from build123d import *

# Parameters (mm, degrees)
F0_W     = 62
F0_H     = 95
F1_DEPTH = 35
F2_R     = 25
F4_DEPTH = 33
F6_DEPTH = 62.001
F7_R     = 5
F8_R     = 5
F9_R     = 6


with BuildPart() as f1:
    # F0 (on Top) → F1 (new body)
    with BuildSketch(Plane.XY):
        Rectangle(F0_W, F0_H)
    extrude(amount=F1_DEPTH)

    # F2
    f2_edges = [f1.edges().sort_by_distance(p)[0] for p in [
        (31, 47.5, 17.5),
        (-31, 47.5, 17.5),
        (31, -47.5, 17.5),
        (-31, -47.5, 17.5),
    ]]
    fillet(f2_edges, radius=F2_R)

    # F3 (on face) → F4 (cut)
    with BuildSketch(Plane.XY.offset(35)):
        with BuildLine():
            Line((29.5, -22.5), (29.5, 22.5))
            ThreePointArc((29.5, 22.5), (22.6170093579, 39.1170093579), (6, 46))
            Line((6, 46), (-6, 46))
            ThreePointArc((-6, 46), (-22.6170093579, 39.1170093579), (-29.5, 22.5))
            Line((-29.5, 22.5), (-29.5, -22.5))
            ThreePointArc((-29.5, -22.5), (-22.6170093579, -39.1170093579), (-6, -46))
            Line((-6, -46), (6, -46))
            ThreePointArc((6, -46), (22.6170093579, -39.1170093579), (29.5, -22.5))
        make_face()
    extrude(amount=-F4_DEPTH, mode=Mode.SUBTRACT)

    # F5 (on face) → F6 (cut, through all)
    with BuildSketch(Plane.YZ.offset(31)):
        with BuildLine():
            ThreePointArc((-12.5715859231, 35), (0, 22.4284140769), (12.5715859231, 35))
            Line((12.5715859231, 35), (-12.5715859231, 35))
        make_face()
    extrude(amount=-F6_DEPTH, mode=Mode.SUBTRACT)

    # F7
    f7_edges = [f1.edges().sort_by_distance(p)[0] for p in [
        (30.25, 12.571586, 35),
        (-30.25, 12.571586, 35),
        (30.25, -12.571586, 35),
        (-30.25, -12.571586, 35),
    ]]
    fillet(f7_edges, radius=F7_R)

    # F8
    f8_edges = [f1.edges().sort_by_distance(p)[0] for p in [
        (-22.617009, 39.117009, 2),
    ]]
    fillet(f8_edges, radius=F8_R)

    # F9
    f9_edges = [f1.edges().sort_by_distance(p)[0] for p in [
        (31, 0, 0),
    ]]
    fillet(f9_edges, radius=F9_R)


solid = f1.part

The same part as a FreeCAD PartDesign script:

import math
import FreeCAD as App
import Part
import Sketcher

V = App.Vector


def edges_at(feature, points):
    """Names of the edges that pass closest to the given points."""
    edges = feature.Shape.Edges
    near = lambda p: min(range(len(edges)), key=lambda i: edges[i].distToShape(Part.Vertex(*p))[0])
    return sorted({f"Edge{near(p) + 1}" for p in points})


def add_polygon(sketch, points):
    """Adds a closed chain of lines whose ends are joined by coincident constraints."""
    first, n = sketch.GeometryCount, len(points)
    for a, b in zip(points, points[1:] + points[:1]):
        sketch.addGeometry(Part.LineSegment(App.Vector(*a, 0), App.Vector(*b, 0)), False)
    for i in range(n):
        sketch.addConstraint(Sketcher.Constraint("Coincident", first + i, 2, first + (i + 1) % n, 1))

doc = App.newDocument("Part")
params = doc.addObject("Spreadsheet::Sheet", "Params")
for row, (alias, value) in enumerate([
    ("sketch1_width", "62 mm"),
    ("sketch1_height", "95 mm"),
    ("pad1_length", "35 mm"),
    ("fillet_radius", "25 mm"),
    ("sketch2_radius", "23.5 mm"),
    ("sketch2_width", "12 mm"),
    ("sketch2_height", "45 mm"),
    ("pocket1_length", "33 mm"),
    ("fillet2_radius", "5 mm"),
    ("fillet3_radius", "5 mm"),
    ("fillet4_radius", "6 mm"),
], start=1):
    params.set(f"A{row}", alias)
    params.set(f"B{row}", "=" + value)
    params.setAlias(f"B{row}", alias)

body = doc.addObject("PartDesign::Body", "Body")

# Sketch on XY plane
sketch1 = body.newObject("Sketcher::SketchObject", "Sketch")
sketch1.AttachmentSupport = (doc.getObject("XY_Plane"), [""])
sketch1.MapMode = "FlatFace"
add_polygon(sketch1, [(-31, 48), (-31, -48), (31, -48), (31, 48)])  # lines 0-3
sketch1.addConstraint(Sketcher.Constraint("Vertical", 0))
sketch1.addConstraint(Sketcher.Constraint("Horizontal", 1))
sketch1.addConstraint(Sketcher.Constraint("Vertical", 2))
sketch1.addConstraint(Sketcher.Constraint("Horizontal", 3))
sketch1.addConstraint(Sketcher.Constraint("Symmetric", 0, 2, 2, 2, -1, 1))
sketch1.addConstraint(Sketcher.Constraint("DistanceX", 1, 1, 1, 2, 62.0))
sketch1.addConstraint(Sketcher.Constraint("DistanceY", 0, 2, 0, 1, 95.0))
sketch1.setExpression("Constraints[9]", "Params.sketch1_width")
sketch1.setExpression("Constraints[10]", "Params.sketch1_height")
pad1 = body.newObject("PartDesign::Pad", "Pad")
pad1.Profile = sketch1
pad1.setExpression("Length", "Params.pad1_length")
doc.recompute()

fillet = body.newObject("PartDesign::Fillet", "Fillet")
fillet.Base = (pad1, edges_at(pad1, [
    (31, 47.5, 17.5),
    (-31, 47.5, 17.5),
    (31, -47.5, 17.5),
    (-31, -47.5, 17.5),
]))
fillet.setExpression("Radius", "Params.fillet_radius")

# Sketch on XY plane
sketch2 = body.newObject("Sketcher::SketchObject", "Sketch001")
sketch2.AttachmentSupport = (doc.getObject("XY_Plane"), [""])
sketch2.MapMode = "FlatFace"
sketch2.AttachmentOffset = App.Placement(V(0, 0, 35), App.Rotation())
sketch2.addGeometry(Part.LineSegment(V(30, -22, 0), V(30, 22, 0)), False)
sketch2.addGeometry(Part.ArcOfCircle(Part.Circle(V(6, 22, 0), V(0, 0, 1), 24), math.radians(0), math.radians(90)), False)
sketch2.addGeometry(Part.LineSegment(V(6, 46, 0), V(-6, 46, 0)), False)
sketch2.addGeometry(Part.ArcOfCircle(Part.Circle(V(-6, 22, 0), V(0, 0, 1), 24), math.radians(90), math.radians(180)), False)
sketch2.addGeometry(Part.LineSegment(V(-30, 22, 0), V(-30, -22, 0)), False)
sketch2.addGeometry(Part.ArcOfCircle(Part.Circle(V(-6, -22, 0), V(0, 0, 1), 24), math.radians(180), math.radians(270)), False)
sketch2.addGeometry(Part.LineSegment(V(-6, -46, 0), V(6, -46, 0)), False)
sketch2.addGeometry(Part.ArcOfCircle(Part.Circle(V(6, -22, 0), V(0, 0, 1), 24), math.radians(-90), math.radians(0)), False)
sketch2.addConstraint(Sketcher.Constraint("Tangent", 0, 2, 1, 1))
sketch2.addConstraint(Sketcher.Constraint("Tangent", 1, 2, 2, 1))
sketch2.addConstraint(Sketcher.Constraint("Tangent", 2, 2, 3, 1))
sketch2.addConstraint(Sketcher.Constraint("Tangent", 3, 2, 4, 1))
sketch2.addConstraint(Sketcher.Constraint("Tangent", 4, 2, 5, 1))
sketch2.addConstraint(Sketcher.Constraint("Tangent", 5, 2, 6, 1))
sketch2.addConstraint(Sketcher.Constraint("Tangent", 6, 2, 7, 1))
sketch2.addConstraint(Sketcher.Constraint("Tangent", 7, 2, 0, 1))
sketch2.addConstraint(Sketcher.Constraint("Vertical", 0))
sketch2.addConstraint(Sketcher.Constraint("Horizontal", 2))
sketch2.addConstraint(Sketcher.Constraint("Vertical", 4))
sketch2.addConstraint(Sketcher.Constraint("Horizontal", 6))
sketch2.addConstraint(Sketcher.Constraint("Equal", 1, 3))
sketch2.addConstraint(Sketcher.Constraint("Equal", 3, 5))
sketch2.addConstraint(Sketcher.Constraint("Equal", 5, 7))
sketch2.addConstraint(Sketcher.Constraint("Symmetric", 1, 3, 5, 3, -1, 1))
sketch2.addConstraint(Sketcher.Constraint("Radius", 1, 23.5))
sketch2.addConstraint(Sketcher.Constraint("DistanceX", 2, 2, 2, 1, 12.0))
sketch2.addConstraint(Sketcher.Constraint("DistanceY", 0, 1, 0, 2, 45.0))
sketch2.setExpression("Constraints[16]", "Params.sketch2_radius")
sketch2.setExpression("Constraints[17]", "Params.sketch2_width")
sketch2.setExpression("Constraints[18]", "Params.sketch2_height")
pocket1 = body.newObject("PartDesign::Pocket", "Pocket")
pocket1.Profile = sketch2
pocket1.setExpression("Length", "Params.pocket1_length")

# Sketch on YZ plane
sketch3 = body.newObject("Sketcher::SketchObject", "Sketch002")
sketch3.AttachmentSupport = (doc.getObject("YZ_Plane"), [""])
sketch3.MapMode = "FlatFace"
sketch3.AttachmentOffset = App.Placement(V(0, 0, 31), App.Rotation())
sketch3.addGeometry(Part.ArcOfCircle(Part.Circle(V(0, 35, 0), V(0, 0, 1), 13), math.radians(180), math.radians(360)), False)
sketch3.addGeometry(Part.LineSegment(V(13, 35, 0), V(-13, 35, 0)), False)
sketch3.addConstraint(Sketcher.Constraint("Coincident", 0, 1, 1, 2))
sketch3.addConstraint(Sketcher.Constraint("Coincident", 1, 1, 0, 2))
sketch3.addConstraint(Sketcher.Constraint("Horizontal", 1))
sketch3.addConstraint(Sketcher.Constraint("PointOnObject", 0, 3, -2))
sketch3.addConstraint(Sketcher.Constraint("DistanceY", -1, 1, 0, 3, 35.0))
sketch3.addConstraint(Sketcher.Constraint("DistanceY", -1, 1, 0, 1, 35.0))
sketch3.addConstraint(Sketcher.Constraint("Radius", 0, 12.571586))
pocket2 = body.newObject("PartDesign::Pocket", "Pocket001")
pocket2.Profile = sketch3
pocket2.Type = "ThroughAll"
doc.recompute()

fillet2 = body.newObject("PartDesign::Fillet", "Fillet001")
fillet2.Base = (pocket2, edges_at(pocket2, [
    (30.25, 12.572, 35),
    (-30.25, 12.572, 35),
    (30.25, -12.572, 35),
    (-30.25, -12.572, 35),
]))
fillet2.setExpression("Radius", "Params.fillet2_radius")
doc.recompute()

fillet3 = body.newObject("PartDesign::Fillet", "Fillet002")
fillet3.Base = (fillet2, edges_at(fillet2, [(-22.617, 39.117, 2)]))
fillet3.setExpression("Radius", "Params.fillet3_radius")
doc.recompute()

fillet4 = body.newObject("PartDesign::Fillet", "Fillet003")
fillet4.Base = (fillet3, edges_at(fillet3, [(31, 0, 0)]))
fillet4.setExpression("Radius", "Params.fillet4_radius")

doc.recompute()
